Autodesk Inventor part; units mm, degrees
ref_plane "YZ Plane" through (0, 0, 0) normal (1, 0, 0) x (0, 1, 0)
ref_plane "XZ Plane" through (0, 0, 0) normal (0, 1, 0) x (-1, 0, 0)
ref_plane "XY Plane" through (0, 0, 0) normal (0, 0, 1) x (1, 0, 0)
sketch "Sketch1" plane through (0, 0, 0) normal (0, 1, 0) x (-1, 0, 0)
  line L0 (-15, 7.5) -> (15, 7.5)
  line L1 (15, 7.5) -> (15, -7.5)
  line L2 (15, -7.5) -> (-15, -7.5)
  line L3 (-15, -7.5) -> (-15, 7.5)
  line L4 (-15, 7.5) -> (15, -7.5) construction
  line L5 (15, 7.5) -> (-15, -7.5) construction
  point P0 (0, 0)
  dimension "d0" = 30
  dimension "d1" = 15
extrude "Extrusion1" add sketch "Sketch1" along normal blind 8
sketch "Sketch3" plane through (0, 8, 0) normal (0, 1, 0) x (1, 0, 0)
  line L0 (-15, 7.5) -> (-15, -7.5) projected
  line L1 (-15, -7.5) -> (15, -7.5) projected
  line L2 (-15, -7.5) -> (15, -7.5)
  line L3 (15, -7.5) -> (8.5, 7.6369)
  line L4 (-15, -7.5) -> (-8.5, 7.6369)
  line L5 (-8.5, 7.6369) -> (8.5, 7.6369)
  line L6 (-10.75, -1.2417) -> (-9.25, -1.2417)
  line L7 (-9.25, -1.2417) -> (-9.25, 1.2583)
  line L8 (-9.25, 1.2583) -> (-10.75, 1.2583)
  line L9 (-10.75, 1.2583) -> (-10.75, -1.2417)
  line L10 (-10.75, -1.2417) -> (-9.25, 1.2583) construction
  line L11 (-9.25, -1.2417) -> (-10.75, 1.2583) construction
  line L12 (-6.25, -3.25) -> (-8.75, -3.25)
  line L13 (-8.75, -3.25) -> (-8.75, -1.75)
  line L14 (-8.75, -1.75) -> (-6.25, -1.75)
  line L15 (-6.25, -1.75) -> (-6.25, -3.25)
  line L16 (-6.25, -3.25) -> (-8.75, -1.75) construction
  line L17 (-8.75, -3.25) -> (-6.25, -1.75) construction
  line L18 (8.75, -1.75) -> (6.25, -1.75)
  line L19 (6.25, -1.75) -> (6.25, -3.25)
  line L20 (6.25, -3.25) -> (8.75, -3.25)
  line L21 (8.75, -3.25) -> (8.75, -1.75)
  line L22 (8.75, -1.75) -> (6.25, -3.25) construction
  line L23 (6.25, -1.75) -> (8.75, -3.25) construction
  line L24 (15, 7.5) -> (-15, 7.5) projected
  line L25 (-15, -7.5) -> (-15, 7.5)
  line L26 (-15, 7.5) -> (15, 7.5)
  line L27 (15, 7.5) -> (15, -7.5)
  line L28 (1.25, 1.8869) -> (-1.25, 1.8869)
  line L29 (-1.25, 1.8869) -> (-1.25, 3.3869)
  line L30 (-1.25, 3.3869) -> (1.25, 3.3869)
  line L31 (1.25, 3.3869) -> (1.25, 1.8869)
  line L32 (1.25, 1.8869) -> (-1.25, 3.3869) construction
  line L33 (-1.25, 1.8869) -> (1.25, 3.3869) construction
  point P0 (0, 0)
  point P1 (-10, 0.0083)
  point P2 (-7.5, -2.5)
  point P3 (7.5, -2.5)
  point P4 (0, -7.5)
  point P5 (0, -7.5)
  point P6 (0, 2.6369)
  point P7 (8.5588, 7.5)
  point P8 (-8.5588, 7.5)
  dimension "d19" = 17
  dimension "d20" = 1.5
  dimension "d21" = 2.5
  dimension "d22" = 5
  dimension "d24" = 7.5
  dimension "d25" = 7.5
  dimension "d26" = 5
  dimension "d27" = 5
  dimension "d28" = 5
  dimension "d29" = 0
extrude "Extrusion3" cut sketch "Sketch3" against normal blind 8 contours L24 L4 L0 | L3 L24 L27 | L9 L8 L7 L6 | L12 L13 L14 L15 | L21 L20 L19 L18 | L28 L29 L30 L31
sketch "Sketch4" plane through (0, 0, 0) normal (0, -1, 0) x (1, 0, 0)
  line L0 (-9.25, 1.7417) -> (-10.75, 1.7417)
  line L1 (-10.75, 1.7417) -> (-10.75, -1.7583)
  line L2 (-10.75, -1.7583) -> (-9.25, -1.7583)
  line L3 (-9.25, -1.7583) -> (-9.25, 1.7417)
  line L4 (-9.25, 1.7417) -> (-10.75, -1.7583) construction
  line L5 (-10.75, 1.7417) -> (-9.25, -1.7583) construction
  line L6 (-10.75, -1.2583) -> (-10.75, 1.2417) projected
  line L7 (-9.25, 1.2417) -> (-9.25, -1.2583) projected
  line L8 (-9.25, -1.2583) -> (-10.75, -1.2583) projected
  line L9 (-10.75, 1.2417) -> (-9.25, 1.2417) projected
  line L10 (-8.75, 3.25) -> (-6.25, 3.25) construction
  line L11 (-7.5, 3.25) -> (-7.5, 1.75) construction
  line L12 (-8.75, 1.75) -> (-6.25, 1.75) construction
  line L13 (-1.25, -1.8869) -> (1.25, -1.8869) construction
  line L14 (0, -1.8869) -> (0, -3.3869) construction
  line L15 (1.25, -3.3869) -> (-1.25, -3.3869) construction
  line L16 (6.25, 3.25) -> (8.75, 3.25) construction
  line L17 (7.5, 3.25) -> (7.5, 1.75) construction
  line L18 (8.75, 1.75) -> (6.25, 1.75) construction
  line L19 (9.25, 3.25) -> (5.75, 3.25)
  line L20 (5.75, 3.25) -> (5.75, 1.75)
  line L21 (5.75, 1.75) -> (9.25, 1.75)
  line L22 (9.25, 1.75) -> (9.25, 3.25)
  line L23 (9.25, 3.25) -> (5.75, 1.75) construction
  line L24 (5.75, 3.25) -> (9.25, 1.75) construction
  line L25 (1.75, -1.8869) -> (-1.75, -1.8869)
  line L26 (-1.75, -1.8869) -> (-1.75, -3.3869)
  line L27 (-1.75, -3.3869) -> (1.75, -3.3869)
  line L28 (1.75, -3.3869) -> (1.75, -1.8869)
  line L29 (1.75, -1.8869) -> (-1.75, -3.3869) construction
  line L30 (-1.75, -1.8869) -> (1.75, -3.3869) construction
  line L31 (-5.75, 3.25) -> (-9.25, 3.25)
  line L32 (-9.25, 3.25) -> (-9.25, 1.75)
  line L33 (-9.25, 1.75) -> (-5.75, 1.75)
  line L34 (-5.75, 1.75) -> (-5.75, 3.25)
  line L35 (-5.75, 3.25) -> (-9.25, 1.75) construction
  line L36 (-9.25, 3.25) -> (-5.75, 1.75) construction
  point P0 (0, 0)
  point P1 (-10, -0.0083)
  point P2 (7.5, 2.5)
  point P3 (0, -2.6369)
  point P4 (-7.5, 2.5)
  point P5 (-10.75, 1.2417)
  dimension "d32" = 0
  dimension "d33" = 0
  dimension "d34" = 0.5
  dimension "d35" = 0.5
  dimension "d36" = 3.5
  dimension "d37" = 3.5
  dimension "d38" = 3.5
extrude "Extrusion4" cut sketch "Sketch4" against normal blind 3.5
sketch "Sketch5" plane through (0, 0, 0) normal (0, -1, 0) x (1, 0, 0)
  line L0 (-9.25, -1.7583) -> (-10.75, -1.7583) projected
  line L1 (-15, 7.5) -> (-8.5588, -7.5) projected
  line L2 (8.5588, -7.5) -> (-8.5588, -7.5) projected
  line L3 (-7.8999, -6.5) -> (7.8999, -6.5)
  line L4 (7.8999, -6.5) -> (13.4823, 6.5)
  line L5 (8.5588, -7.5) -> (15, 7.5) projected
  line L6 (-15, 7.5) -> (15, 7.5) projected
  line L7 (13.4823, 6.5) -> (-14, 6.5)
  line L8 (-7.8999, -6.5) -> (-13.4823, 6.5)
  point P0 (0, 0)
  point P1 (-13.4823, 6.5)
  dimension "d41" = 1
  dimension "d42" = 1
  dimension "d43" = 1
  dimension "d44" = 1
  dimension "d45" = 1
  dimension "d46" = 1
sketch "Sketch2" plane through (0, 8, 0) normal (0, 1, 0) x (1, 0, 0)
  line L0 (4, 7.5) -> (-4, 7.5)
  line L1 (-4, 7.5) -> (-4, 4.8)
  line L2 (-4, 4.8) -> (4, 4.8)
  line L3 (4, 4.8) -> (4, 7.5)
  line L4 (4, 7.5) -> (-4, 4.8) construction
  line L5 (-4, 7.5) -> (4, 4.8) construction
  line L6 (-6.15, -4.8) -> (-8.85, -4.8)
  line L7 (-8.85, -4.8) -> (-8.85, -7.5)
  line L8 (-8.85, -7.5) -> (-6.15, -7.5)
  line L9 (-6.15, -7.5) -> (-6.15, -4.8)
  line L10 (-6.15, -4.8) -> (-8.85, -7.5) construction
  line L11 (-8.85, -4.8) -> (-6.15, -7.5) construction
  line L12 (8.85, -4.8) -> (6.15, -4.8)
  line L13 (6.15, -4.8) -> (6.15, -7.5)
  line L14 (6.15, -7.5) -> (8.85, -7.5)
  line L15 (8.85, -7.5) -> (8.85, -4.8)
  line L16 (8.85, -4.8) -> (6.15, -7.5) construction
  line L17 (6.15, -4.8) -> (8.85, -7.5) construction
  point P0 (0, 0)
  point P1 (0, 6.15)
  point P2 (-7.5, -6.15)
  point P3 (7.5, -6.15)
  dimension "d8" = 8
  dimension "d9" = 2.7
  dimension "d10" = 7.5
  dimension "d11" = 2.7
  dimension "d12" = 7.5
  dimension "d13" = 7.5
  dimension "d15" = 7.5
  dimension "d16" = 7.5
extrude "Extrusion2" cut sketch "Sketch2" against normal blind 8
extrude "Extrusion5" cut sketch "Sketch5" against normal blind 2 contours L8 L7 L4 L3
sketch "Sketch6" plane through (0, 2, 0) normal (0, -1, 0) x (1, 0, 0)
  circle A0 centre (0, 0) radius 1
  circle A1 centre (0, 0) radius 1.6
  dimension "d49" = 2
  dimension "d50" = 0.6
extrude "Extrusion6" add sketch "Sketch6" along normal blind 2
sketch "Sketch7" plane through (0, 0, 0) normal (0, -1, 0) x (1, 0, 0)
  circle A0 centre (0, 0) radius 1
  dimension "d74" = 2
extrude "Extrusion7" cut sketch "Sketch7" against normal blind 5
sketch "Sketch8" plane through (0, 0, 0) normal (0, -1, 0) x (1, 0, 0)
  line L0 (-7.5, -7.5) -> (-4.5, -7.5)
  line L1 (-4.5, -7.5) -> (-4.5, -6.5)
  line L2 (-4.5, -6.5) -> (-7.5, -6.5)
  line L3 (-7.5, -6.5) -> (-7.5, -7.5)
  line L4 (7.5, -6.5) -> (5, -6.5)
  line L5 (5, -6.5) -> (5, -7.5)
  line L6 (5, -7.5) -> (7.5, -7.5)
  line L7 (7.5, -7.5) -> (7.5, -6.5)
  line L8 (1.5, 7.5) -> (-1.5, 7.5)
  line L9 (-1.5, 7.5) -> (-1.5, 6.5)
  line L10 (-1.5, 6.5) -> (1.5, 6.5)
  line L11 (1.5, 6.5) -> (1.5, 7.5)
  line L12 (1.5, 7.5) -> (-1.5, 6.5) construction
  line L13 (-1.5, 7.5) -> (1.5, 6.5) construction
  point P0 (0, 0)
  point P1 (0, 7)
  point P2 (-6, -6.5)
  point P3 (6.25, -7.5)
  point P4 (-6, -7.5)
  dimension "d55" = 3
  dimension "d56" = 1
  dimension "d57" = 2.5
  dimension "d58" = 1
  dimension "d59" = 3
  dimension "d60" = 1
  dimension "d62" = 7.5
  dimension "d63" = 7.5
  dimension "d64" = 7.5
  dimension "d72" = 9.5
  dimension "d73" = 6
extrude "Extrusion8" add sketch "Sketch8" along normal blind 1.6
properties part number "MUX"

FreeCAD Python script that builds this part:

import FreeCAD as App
import Part
import Sketcher
Q = App.Units.Quantity


def add_polygon(sketch, points):
    """Adds a closed chain of lines whose ends are joined by coincident constraints."""
    first, n = sketch.GeometryCount, len(points)
    for a, b in zip(points, points[1:] + points[:1]):
        sketch.addGeometry(Part.LineSegment(App.Vector(*a, 0), App.Vector(*b, 0)), False)
    for i in range(n):
        sketch.addConstraint(Sketcher.Constraint("Coincident", first + i, 2, first + (i + 1) % n, 1))

doc = App.newDocument("Part")
body = doc.addObject("PartDesign::Body", "Body")

# Sketch on XZ plane
sketch1 = body.newObject("Sketcher::SketchObject", "Sketch")
sketch1.AttachmentSupport = (doc.getObject("XZ_Plane"), [""])
sketch1.MapMode = "FlatFace"
add_polygon(sketch1, [(-15, 8), (15, 8), (15, -8), (-15, -8)])  # lines 0-3
sketch1.addConstraint(Sketcher.Constraint("Horizontal", 0))
sketch1.addConstraint(Sketcher.Constraint("Vertical", 1))
sketch1.addConstraint(Sketcher.Constraint("Horizontal", 2))
sketch1.addConstraint(Sketcher.Constraint("Vertical", 3))
sketch1.addConstraint(Sketcher.Constraint("Symmetric", 0, 2, 2, 2, -1, 1))
sketch1.addConstraint(Sketcher.Constraint("DistanceX", 0, 1, 0, 2, 30.0))
sketch1.addConstraint(Sketcher.Constraint("DistanceY", 1, 2, 1, 1, 15.0))
pad1 = body.newObject("PartDesign::Pad", "Pad")
pad1.Profile = sketch1
pad1.Length = 8
pad1.Reversed = True

# Sketch on XZ plane
sketch2 = body.newObject("Sketcher::SketchObject", "Sketch001")
sketch2.AttachmentSupport = (doc.getObject("XZ_Plane"), [""])
sketch2.MapMode = "FlatFace"
sketch2.AttachmentOffset = App.Placement(App.Vector(0, 0, -8), App.Rotation())
add_polygon(sketch2, [(-8.6, -7.5), (-15, -7.5), (-15, 7.5)])  # lines 0-2
add_polygon(sketch2, [(8.6, -7.5), (15, 7.5), (15, -7.5)])  # lines 3-5
add_polygon(sketch2, [(-10.8, -1.3), (-10.8, 1.2), (-9.2, 1.2), (-9.2, -1.3)])  # lines 6-9
add_polygon(sketch2, [(-8.8, 3.2), (-6.2, 3.2), (-6.2, 1.8), (-8.8, 1.8)])  # lines 10-13
add_polygon(sketch2, [(8.8, 3.2), (8.8, 1.8), (6.2, 1.8), (6.2, 3.2)])  # lines 14-17
add_polygon(sketch2, [(-1.2, -1.9), (1.2, -1.9), (1.2, -3.4), (-1.2, -3.4)])  # lines 18-21
sketch2.addConstraint(Sketcher.Constraint("Horizontal", 0))
sketch2.addConstraint(Sketcher.Constraint("Vertical", 1))
sketch2.addConstraint(Sketcher.Constraint("Vertical", 4))
sketch2.addConstraint(Sketcher.Constraint("Horizontal", 5))
sketch2.addConstraint(Sketcher.Constraint("Vertical", 6))
sketch2.addConstraint(Sketcher.Constraint("Horizontal", 7))
sketch2.addConstraint(Sketcher.Constraint("Vertical", 8))
sketch2.addConstraint(Sketcher.Constraint("Horizontal", 9))
sketch2.addConstraint(Sketcher.Constraint("Horizontal", 10))
sketch2.addConstraint(Sketcher.Constraint("Vertical", 11))
sketch2.addConstraint(Sketcher.Constraint("Horizontal", 12))
sketch2.addConstraint(Sketcher.Constraint("Vertical", 13))
sketch2.addConstraint(Sketcher.Constraint("Vertical", 14))
sketch2.addConstraint(Sketcher.Constraint("Horizontal", 15))
sketch2.addConstraint(Sketcher.Constraint("Vertical", 16))
sketch2.addConstraint(Sketcher.Constraint("Horizontal", 17))
sketch2.addConstraint(Sketcher.Constraint("Horizontal", 18))
sketch2.addConstraint(Sketcher.Constraint("Vertical", 19))
sketch2.addConstraint(Sketcher.Constraint("Horizontal", 20))
sketch2.addConstraint(Sketcher.Constraint("Vertical", 21))
sketch2.addConstraint(Sketcher.Constraint("Symmetric", 0, 2, 3, 2, -1, 1))
sketch2.addConstraint(Sketcher.Constraint("Symmetric", 2, 2, 5, 2, -2))
sketch2.addConstraint(Sketcher.Constraint("Symmetric", 12, 2, 14, 2, -2))
sketch2.addConstraint(Sketcher.Constraint("Symmetric", 10, 2, 16, 2, -2))
sketch2.addConstraint(Sketcher.Constraint("Horizontal", 1, 2, 3, 2))
sketch2.addConstraint(Sketcher.Constraint("Equal", 17, 18))
sketch2.addConstraint(Sketcher.Constraint("Equal", 20, 6))
sketch2.addConstraint(Sketcher.Constraint("Equal", 9, 11))
sketch2.addConstraint(Sketcher.Constraint("Equal", 16, 19))
sketch2.addConstraint(Sketcher.Constraint("DistanceX", 7, 1, 7, 2, 1.5))
sketch2.addConstraint(Sketcher.Constraint("DistanceX", 10, 1, 10, 2, 2.5))
sketch2.addConstraint(Sketcher.Constraint("DistanceX", 18, 2, 15, 2, 5.0))
sketch2.addConstraint(Sketcher.Constraint("DistanceX", 11, 2, 20, 2, 5.0))
sketch2.addConstraint(Sketcher.Constraint("DistanceY", 0, 2, -1, 1, 7.5))
sketch2.addConstraint(Sketcher.Constraint("DistanceX", 0, 2, -1, 1, 15.0))
sketch2.addConstraint(Sketcher.Constraint("DistanceX", 7, 2, 10, 2, 3.0))
sketch2.addConstraint(Sketcher.Constraint("Angle", 2, Q("-66.7606 deg")))
sketch2.addConstraint(Sketcher.Constraint("DistanceY", -1, 1, 10, 2, 3.25))
sketch2.addConstraint(Sketcher.Constraint("DistanceY", 18, 2, -1, 1, 1.887))
sketch2.addConstraint(Sketcher.Constraint("DistanceY", -1, 1, 6, 2, 1.2417))
pocket1 = body.newObject("PartDesign::Pocket", "Pocket")
pocket1.Profile = sketch2
pocket1.Length = 8
pocket1.Reversed = True

# Sketch on XZ plane
sketch3 = body.newObject("Sketcher::SketchObject", "Sketch002")
sketch3.AttachmentSupport = (doc.getObject("XZ_Plane"), [""])
sketch3.MapMode = "FlatFace"
add_polygon(sketch3, [(-9.2, 1.7), (-10.8, 1.7), (-10.8, -1.8), (-9.2, -1.8)])  # lines 0-3
add_polygon(sketch3, [(9.2, 1.8), (9.2, 3.2), (5.8, 3.2), (5.8, 1.8)])  # lines 4-7
add_polygon(sketch3, [(1.8, -3.4), (1.8, -1.9), (-1.8, -1.9), (-1.8, -3.4)])  # lines 8-11
add_polygon(sketch3, [(-5.8, 1.8), (-5.8, 3.2), (-9.2, 3.2), (-9.2, 1.8)])  # lines 12-15
sketch3.addConstraint(Sketcher.Constraint("Horizontal", 0))
sketch3.addConstraint(Sketcher.Constraint("Vertical", 1))
sketch3.addConstraint(Sketcher.Constraint("Horizontal", 2))
sketch3.addConstraint(Sketcher.Constraint("Vertical", 3))
sketch3.addConstraint(Sketcher.Constraint("Vertical", 4))
sketch3.addConstraint(Sketcher.Constraint("Horizontal", 5))
sketch3.addConstraint(Sketcher.Constraint("Vertical", 6))
sketch3.addConstraint(Sketcher.Constraint("Horizontal", 7))
sketch3.addConstraint(Sketcher.Constraint("Vertical", 8))
sketch3.addConstraint(Sketcher.Constraint("Horizontal", 9))
sketch3.addConstraint(Sketcher.Constraint("Vertical", 10))
sketch3.addConstraint(Sketcher.Constraint("Horizontal", 11))
sketch3.addConstraint(Sketcher.Constraint("Vertical", 12))
sketch3.addConstraint(Sketcher.Constraint("Horizontal", 13))
sketch3.addConstraint(Sketcher.Constraint("Vertical", 14))
sketch3.addConstraint(Sketcher.Constraint("Horizontal", 15))
sketch3.addConstraint(Sketcher.Constraint("Symmetric", 5, 2, 12, 2, -2))
sketch3.addConstraint(Sketcher.Constraint("Symmetric", 7, 2, 14, 2, -2))
sketch3.addConstraint(Sketcher.Constraint("Vertical", 3, 2, 13, 2))
sketch3.addConstraint(Sketcher.Constraint("Equal", 7, 9))
sketch3.addConstraint(Sketcher.Constraint("Equal", 15, 1))
sketch3.addConstraint(Sketcher.Constraint("Equal", 2, 4))
sketch3.addConstraint(Sketcher.Constraint("Equal", 6, 8))
sketch3.addConstraint(Sketcher.Constraint("DistanceX", 5, 2, 5, 1, 3.5))
sketch3.addConstraint(Sketcher.Constraint("DistanceX", 0, 2, 0, 1, 1.5))
sketch3.addConstraint(Sketcher.Constraint("DistanceX", 0, 2, 4, 2, 20.0))
sketch3.addConstraint(Sketcher.Constraint("DistanceX", 8, 2, 6, 2, 4.0))
sketch3.addConstraint(Sketcher.Constraint("DistanceY", -1, 1, 4, 2, 3.25))
sketch3.addConstraint(Sketcher.Constraint("DistanceY", 8, 2, -1, 1, 1.887))
sketch3.addConstraint(Sketcher.Constraint("DistanceY", -1, 1, 0, 2, 1.7417))
pocket2 = body.newObject("PartDesign::Pocket", "Pocket001")
pocket2.Profile = sketch3
pocket2.Length = 3.5

# Sketch on XZ plane
sketch4 = body.newObject("Sketcher::SketchObject", "Sketch003")
sketch4.AttachmentSupport = (doc.getObject("XZ_Plane"), [""])
sketch4.MapMode = "FlatFace"
sketch4.AttachmentOffset = App.Placement(App.Vector(0, 0, -8), App.Rotation())
add_polygon(sketch4, [(4, -4.8), (4, -7.5), (-4, -7.5), (-4, -4.8)])  # lines 0-3
add_polygon(sketch4, [(-6.2, 7.5), (-6.2, 4.8), (-8.8, 4.8), (-8.8, 7.5)])  # lines 4-7
add_polygon(sketch4, [(8.8, 7.5), (8.8, 4.8), (6.2, 4.8), (6.2, 7.5)])  # lines 8-11
sketch4.addConstraint(Sketcher.Constraint("Vertical", 0))
sketch4.addConstraint(Sketcher.Constraint("Horizontal", 1))
sketch4.addConstraint(Sketcher.Constraint("Vertical", 2))
sketch4.addConstraint(Sketcher.Constraint("Horizontal", 3))
sketch4.addConstraint(Sketcher.Constraint("Vertical", 4))
sketch4.addConstraint(Sketcher.Constraint("Horizontal", 5))
sketch4.addConstraint(Sketcher.Constraint("Vertical", 6))
sketch4.addConstraint(Sketcher.Constraint("Horizontal", 7))
sketch4.addConstraint(Sketcher.Constraint("Vertical", 8))
sketch4.addConstraint(Sketcher.Constraint("Horizontal", 9))
sketch4.addConstraint(Sketcher.Constraint("Vertical", 10))
sketch4.addConstraint(Sketcher.Constraint("Horizontal", 11))
sketch4.addConstraint(Sketcher.Constraint("Symmetric", 5, 2, 8, 2, -2))
sketch4.addConstraint(Sketcher.Constraint("Symmetric", 7, 2, 10, 2, -2))
sketch4.addConstraint(Sketcher.Constraint("Equal", 11, 0))
sketch4.addConstraint(Sketcher.Constraint("Equal", 2, 4))
sketch4.addConstraint(Sketcher.Constraint("DistanceX", 1, 2, 1, 1, 8.0))
sketch4.addConstraint(Sketcher.Constraint("DistanceX", 5, 2, 5, 1, 2.7))
sketch4.addConstraint(Sketcher.Constraint("DistanceY", 0, 2, -1, 1, 7.5))
sketch4.addConstraint(Sketcher.Constraint("DistanceY", -1, 1, 6, 2, 7.5))
sketch4.addConstraint(Sketcher.Constraint("DistanceX", -1, 1, 0, 2, 4.0))
sketch4.addConstraint(Sketcher.Constraint("DistanceX", 4, 2, 8, 2, 15.0))
pocket3 = body.newObject("PartDesign::Pocket", "Pocket002")
pocket3.Profile = sketch4
pocket3.Length = 8
pocket3.Reversed = True

# Sketch on XZ plane
sketch5 = body.newObject("Sketcher::SketchObject", "Sketch004")
sketch5.AttachmentSupport = (doc.getObject("XZ_Plane"), [""])
sketch5.MapMode = "FlatFace"
add_polygon(sketch5, [(-13, 6), (-8, -6), (8, -6), (13, 6)])  # lines 0-3
sketch5.addConstraint(Sketcher.Constraint("Horizontal", 1))
sketch5.addConstraint(Sketcher.Constraint("Horizontal", 3))
sketch5.addConstraint(Sketcher.Constraint("Equal", 0, 2))
sketch5.addConstraint(Sketcher.Constraint("DistanceY", 1, 2, 2, 2, 13.0))
sketch5.addConstraint(Sketcher.Constraint("DistanceX", 0, 2, -1, 1, 7.9))
sketch5.addConstraint(Sketcher.Constraint("DistanceY", 0, 2, -1, 1, 6.5))
sketch5.addConstraint(Sketcher.Constraint("DistanceX", -1, 1, 1, 2, 7.9))
sketch5.addConstraint(Sketcher.Constraint("Angle", 0, Q("-66.7606 deg")))
pocket4 = body.newObject("PartDesign::Pocket", "Pocket003")
pocket4.Profile = sketch5
pocket4.Length = 2

# Sketch on XZ plane
sketch6 = body.newObject("Sketcher::SketchObject", "Sketch005")
sketch6.AttachmentSupport = (doc.getObject("XZ_Plane"), [""])
sketch6.MapMode = "FlatFace"
sketch6.AttachmentOffset = App.Placement(App.Vector(0, 0, -2), App.Rotation())
sketch6.addGeometry(Part.Circle(App.Vector(0, 0, 0), App.Vector(0, 0, 1), 1.6), False)
sketch6.addGeometry(Part.Circle(App.Vector(0, 0, 0), App.Vector(0, 0, 1), 1), False)
sketch6.addConstraint(Sketcher.Constraint("Coincident", 0, 3, -1, 1))
sketch6.addConstraint(Sketcher.Constraint("Coincident", 1, 3, -1, 1))
sketch6.addConstraint(Sketcher.Constraint("Diameter", 1, 2.0))
sketch6.addConstraint(Sketcher.Constraint("Diameter", 0, 3.2))
pad2 = body.newObject("PartDesign::Pad", "Pad001")
pad2.Profile = sketch6
pad2.Length = 2

# Sketch on XZ plane
sketch7 = body.newObject("Sketcher::SketchObject", "Sketch006")
sketch7.AttachmentSupport = (doc.getObject("XZ_Plane"), [""])
sketch7.MapMode = "FlatFace"
sketch7.addGeometry(Part.Circle(App.Vector(0, 0, 0), App.Vector(0, 0, 1), 1), False)
sketch7.addConstraint(Sketcher.Constraint("Coincident", 0, 3, -1, 1))
sketch7.addConstraint(Sketcher.Constraint("Diameter", 0, 2.0))
pocket5 = body.newObject("PartDesign::Pocket", "Pocket004")
pocket5.Profile = sketch7
pocket5.Length = 5

# Sketch on XZ plane
sketch8 = body.newObject("Sketcher::SketchObject", "Sketch007")
sketch8.AttachmentSupport = (doc.getObject("XZ_Plane"), [""])
sketch8.MapMode = "FlatFace"
add_polygon(sketch8, [(-7.5, -6.5), (-7.5, -7.5), (-4.5, -7.5), (-4.5, -6.5)])  # lines 0-3
add_polygon(sketch8, [(7.5, -7.5), (7.5, -6.5), (5, -6.5), (5, -7.5)])  # lines 4-7
add_polygon(sketch8, [(1.5, 6.5), (1.5, 7.5), (-1.5, 7.5), (-1.5, 6.5)])  # lines 8-11
sketch8.addConstraint(Sketcher.Constraint("Vertical", 0))
sketch8.addConstraint(Sketcher.Constraint("Horizontal", 1))
sketch8.addConstraint(Sketcher.Constraint("Vertical", 2))
sketch8.addConstraint(Sketcher.Constraint("Horizontal", 3))
sketch8.addConstraint(Sketcher.Constraint("Vertical", 4))
sketch8.addConstraint(Sketcher.Constraint("Horizontal", 5))
sketch8.addConstraint(Sketcher.Constraint("Vertical", 6))
sketch8.addConstraint(Sketcher.Constraint("Horizontal", 7))
sketch8.addConstraint(Sketcher.Constraint("Vertical", 8))
sketch8.addConstraint(Sketcher.Constraint("Horizontal", 9))
sketch8.addConstraint(Sketcher.Constraint("Vertical", 10))
sketch8.addConstraint(Sketcher.Constraint("Horizontal", 11))
sketch8.addConstraint(Sketcher.Constraint("Symmetric", 3, 2, 4, 2, -2))
sketch8.addConstraint(Sketcher.Constraint("Horizontal", 1, 2, 6, 2))
sketch8.addConstraint(Sketcher.Constraint("Equal", 3, 9))
sketch8.addConstraint(Sketcher.Constraint("Equal", 6, 8))
sketch8.addConstraint(Sketcher.Constraint("DistanceX", 1, 1, 1, 2, 3.0))
sketch8.addConstraint(Sketcher.Constraint("DistanceY", 0, 2, 0, 1, 1.0))
sketch8.addConstraint(Sketcher.Constraint("DistanceX", 5, 2, 5, 1, 2.5))
sketch8.addConstraint(Sketcher.Constraint("DistanceX", 2, 2, 8, 2, 6.0))
sketch8.addConstraint(Sketcher.Constraint("DistanceX", 8, 2, 4, 2, 6.0))
sketch8.addConstraint(Sketcher.Constraint("DistanceY", 0, 2, -1, 1, 7.5))
sketch8.addConstraint(Sketcher.Constraint("DistanceY", -1, 1, 8, 2, 7.5))
pad3 = body.newObject("PartDesign::Pad", "Pad002")
pad3.Profile = sketch8
pad3.Length = 1.6

doc.recompute()
